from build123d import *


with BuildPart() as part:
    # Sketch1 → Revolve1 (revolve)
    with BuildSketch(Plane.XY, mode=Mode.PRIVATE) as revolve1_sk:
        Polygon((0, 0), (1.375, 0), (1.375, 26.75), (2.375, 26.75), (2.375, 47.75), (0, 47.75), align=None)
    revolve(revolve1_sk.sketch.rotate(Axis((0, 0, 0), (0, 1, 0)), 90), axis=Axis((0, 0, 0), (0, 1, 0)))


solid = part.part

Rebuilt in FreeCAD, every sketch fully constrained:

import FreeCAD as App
import Part
import Sketcher


def add_polygon(sketch, points):
    """Adds a closed chain of lines whose ends are joined by coincident constraints."""
    first, n = sketch.GeometryCount, len(points)
    for a, b in zip(points, points[1:] + points[:1]):
        sketch.addGeometry(Part.LineSegment(App.Vector(*a, 0), App.Vector(*b, 0)), False)
    for i in range(n):
        sketch.addConstraint(Sketcher.Constraint("Coincident", first + i, 2, first + (i + 1) % n, 1))

doc = App.newDocument("Part")
params = doc.addObject("Spreadsheet::Sheet", "Params")
for row, (alias, value) in enumerate([
    ("sketch1_width", "1 mm"),
    ("sketch1_height", "21 mm"),
    ("sketch1_height2", "26.75 mm"),
    ("revolution_angle", "360 deg"),
], start=1):
    params.set(f"A{row}", alias)
    params.set(f"B{row}", "=" + value)
    params.setAlias(f"B{row}", alias)

body = doc.addObject("PartDesign::Body", "Body")

# Sketch on XY plane
sketch1 = body.newObject("Sketcher::SketchObject", "Sketch")
sketch1.AttachmentSupport = (doc.getObject("XY_Plane"), [""])
sketch1.MapMode = "FlatFace"
add_polygon(sketch1, [(0, 0), (1.4, 0), (1.4, 26.8), (2.4, 26.8), (2.4, 47.8), (0, 47.8)])  # lines 0-5
sketch1.addConstraint(Sketcher.Constraint("Horizontal", 0))
sketch1.addConstraint(Sketcher.Constraint("Vertical", 1))
sketch1.addConstraint(Sketcher.Constraint("Horizontal", 2))
sketch1.addConstraint(Sketcher.Constraint("Vertical", 3))
sketch1.addConstraint(Sketcher.Constraint("Horizontal", 4))
sketch1.addConstraint(Sketcher.Constraint("Vertical", 5))
sketch1.addConstraint(Sketcher.Constraint("Coincident", 5, 2, -1, 1))
sketch1.addConstraint(Sketcher.Constraint("DistanceX", 2, 1, 2, 2, 1.0))
sketch1.addConstraint(Sketcher.Constraint("DistanceY", 3, 1, 3, 2, 21.0))
sketch1.addConstraint(Sketcher.Constraint("DistanceY", 1, 1, 1, 2, 26.75))
sketch1.addConstraint(Sketcher.Constraint("DistanceX", 0, 1, 0, 2, 1.375))
sketch1.setExpression("Constraints[13]", "Params.sketch1_width")
sketch1.setExpression("Constraints[14]", "Params.sketch1_height")
sketch1.setExpression("Constraints[15]", "Params.sketch1_height2")
revolution = body.newObject("PartDesign::Revolution", "Revolution")
revolution.Profile = sketch1
revolution.ReferenceAxis = (sketch1, ["V_Axis"])
revolution.setExpression("Angle", "Params.revolution_angle")

doc.recompute()
